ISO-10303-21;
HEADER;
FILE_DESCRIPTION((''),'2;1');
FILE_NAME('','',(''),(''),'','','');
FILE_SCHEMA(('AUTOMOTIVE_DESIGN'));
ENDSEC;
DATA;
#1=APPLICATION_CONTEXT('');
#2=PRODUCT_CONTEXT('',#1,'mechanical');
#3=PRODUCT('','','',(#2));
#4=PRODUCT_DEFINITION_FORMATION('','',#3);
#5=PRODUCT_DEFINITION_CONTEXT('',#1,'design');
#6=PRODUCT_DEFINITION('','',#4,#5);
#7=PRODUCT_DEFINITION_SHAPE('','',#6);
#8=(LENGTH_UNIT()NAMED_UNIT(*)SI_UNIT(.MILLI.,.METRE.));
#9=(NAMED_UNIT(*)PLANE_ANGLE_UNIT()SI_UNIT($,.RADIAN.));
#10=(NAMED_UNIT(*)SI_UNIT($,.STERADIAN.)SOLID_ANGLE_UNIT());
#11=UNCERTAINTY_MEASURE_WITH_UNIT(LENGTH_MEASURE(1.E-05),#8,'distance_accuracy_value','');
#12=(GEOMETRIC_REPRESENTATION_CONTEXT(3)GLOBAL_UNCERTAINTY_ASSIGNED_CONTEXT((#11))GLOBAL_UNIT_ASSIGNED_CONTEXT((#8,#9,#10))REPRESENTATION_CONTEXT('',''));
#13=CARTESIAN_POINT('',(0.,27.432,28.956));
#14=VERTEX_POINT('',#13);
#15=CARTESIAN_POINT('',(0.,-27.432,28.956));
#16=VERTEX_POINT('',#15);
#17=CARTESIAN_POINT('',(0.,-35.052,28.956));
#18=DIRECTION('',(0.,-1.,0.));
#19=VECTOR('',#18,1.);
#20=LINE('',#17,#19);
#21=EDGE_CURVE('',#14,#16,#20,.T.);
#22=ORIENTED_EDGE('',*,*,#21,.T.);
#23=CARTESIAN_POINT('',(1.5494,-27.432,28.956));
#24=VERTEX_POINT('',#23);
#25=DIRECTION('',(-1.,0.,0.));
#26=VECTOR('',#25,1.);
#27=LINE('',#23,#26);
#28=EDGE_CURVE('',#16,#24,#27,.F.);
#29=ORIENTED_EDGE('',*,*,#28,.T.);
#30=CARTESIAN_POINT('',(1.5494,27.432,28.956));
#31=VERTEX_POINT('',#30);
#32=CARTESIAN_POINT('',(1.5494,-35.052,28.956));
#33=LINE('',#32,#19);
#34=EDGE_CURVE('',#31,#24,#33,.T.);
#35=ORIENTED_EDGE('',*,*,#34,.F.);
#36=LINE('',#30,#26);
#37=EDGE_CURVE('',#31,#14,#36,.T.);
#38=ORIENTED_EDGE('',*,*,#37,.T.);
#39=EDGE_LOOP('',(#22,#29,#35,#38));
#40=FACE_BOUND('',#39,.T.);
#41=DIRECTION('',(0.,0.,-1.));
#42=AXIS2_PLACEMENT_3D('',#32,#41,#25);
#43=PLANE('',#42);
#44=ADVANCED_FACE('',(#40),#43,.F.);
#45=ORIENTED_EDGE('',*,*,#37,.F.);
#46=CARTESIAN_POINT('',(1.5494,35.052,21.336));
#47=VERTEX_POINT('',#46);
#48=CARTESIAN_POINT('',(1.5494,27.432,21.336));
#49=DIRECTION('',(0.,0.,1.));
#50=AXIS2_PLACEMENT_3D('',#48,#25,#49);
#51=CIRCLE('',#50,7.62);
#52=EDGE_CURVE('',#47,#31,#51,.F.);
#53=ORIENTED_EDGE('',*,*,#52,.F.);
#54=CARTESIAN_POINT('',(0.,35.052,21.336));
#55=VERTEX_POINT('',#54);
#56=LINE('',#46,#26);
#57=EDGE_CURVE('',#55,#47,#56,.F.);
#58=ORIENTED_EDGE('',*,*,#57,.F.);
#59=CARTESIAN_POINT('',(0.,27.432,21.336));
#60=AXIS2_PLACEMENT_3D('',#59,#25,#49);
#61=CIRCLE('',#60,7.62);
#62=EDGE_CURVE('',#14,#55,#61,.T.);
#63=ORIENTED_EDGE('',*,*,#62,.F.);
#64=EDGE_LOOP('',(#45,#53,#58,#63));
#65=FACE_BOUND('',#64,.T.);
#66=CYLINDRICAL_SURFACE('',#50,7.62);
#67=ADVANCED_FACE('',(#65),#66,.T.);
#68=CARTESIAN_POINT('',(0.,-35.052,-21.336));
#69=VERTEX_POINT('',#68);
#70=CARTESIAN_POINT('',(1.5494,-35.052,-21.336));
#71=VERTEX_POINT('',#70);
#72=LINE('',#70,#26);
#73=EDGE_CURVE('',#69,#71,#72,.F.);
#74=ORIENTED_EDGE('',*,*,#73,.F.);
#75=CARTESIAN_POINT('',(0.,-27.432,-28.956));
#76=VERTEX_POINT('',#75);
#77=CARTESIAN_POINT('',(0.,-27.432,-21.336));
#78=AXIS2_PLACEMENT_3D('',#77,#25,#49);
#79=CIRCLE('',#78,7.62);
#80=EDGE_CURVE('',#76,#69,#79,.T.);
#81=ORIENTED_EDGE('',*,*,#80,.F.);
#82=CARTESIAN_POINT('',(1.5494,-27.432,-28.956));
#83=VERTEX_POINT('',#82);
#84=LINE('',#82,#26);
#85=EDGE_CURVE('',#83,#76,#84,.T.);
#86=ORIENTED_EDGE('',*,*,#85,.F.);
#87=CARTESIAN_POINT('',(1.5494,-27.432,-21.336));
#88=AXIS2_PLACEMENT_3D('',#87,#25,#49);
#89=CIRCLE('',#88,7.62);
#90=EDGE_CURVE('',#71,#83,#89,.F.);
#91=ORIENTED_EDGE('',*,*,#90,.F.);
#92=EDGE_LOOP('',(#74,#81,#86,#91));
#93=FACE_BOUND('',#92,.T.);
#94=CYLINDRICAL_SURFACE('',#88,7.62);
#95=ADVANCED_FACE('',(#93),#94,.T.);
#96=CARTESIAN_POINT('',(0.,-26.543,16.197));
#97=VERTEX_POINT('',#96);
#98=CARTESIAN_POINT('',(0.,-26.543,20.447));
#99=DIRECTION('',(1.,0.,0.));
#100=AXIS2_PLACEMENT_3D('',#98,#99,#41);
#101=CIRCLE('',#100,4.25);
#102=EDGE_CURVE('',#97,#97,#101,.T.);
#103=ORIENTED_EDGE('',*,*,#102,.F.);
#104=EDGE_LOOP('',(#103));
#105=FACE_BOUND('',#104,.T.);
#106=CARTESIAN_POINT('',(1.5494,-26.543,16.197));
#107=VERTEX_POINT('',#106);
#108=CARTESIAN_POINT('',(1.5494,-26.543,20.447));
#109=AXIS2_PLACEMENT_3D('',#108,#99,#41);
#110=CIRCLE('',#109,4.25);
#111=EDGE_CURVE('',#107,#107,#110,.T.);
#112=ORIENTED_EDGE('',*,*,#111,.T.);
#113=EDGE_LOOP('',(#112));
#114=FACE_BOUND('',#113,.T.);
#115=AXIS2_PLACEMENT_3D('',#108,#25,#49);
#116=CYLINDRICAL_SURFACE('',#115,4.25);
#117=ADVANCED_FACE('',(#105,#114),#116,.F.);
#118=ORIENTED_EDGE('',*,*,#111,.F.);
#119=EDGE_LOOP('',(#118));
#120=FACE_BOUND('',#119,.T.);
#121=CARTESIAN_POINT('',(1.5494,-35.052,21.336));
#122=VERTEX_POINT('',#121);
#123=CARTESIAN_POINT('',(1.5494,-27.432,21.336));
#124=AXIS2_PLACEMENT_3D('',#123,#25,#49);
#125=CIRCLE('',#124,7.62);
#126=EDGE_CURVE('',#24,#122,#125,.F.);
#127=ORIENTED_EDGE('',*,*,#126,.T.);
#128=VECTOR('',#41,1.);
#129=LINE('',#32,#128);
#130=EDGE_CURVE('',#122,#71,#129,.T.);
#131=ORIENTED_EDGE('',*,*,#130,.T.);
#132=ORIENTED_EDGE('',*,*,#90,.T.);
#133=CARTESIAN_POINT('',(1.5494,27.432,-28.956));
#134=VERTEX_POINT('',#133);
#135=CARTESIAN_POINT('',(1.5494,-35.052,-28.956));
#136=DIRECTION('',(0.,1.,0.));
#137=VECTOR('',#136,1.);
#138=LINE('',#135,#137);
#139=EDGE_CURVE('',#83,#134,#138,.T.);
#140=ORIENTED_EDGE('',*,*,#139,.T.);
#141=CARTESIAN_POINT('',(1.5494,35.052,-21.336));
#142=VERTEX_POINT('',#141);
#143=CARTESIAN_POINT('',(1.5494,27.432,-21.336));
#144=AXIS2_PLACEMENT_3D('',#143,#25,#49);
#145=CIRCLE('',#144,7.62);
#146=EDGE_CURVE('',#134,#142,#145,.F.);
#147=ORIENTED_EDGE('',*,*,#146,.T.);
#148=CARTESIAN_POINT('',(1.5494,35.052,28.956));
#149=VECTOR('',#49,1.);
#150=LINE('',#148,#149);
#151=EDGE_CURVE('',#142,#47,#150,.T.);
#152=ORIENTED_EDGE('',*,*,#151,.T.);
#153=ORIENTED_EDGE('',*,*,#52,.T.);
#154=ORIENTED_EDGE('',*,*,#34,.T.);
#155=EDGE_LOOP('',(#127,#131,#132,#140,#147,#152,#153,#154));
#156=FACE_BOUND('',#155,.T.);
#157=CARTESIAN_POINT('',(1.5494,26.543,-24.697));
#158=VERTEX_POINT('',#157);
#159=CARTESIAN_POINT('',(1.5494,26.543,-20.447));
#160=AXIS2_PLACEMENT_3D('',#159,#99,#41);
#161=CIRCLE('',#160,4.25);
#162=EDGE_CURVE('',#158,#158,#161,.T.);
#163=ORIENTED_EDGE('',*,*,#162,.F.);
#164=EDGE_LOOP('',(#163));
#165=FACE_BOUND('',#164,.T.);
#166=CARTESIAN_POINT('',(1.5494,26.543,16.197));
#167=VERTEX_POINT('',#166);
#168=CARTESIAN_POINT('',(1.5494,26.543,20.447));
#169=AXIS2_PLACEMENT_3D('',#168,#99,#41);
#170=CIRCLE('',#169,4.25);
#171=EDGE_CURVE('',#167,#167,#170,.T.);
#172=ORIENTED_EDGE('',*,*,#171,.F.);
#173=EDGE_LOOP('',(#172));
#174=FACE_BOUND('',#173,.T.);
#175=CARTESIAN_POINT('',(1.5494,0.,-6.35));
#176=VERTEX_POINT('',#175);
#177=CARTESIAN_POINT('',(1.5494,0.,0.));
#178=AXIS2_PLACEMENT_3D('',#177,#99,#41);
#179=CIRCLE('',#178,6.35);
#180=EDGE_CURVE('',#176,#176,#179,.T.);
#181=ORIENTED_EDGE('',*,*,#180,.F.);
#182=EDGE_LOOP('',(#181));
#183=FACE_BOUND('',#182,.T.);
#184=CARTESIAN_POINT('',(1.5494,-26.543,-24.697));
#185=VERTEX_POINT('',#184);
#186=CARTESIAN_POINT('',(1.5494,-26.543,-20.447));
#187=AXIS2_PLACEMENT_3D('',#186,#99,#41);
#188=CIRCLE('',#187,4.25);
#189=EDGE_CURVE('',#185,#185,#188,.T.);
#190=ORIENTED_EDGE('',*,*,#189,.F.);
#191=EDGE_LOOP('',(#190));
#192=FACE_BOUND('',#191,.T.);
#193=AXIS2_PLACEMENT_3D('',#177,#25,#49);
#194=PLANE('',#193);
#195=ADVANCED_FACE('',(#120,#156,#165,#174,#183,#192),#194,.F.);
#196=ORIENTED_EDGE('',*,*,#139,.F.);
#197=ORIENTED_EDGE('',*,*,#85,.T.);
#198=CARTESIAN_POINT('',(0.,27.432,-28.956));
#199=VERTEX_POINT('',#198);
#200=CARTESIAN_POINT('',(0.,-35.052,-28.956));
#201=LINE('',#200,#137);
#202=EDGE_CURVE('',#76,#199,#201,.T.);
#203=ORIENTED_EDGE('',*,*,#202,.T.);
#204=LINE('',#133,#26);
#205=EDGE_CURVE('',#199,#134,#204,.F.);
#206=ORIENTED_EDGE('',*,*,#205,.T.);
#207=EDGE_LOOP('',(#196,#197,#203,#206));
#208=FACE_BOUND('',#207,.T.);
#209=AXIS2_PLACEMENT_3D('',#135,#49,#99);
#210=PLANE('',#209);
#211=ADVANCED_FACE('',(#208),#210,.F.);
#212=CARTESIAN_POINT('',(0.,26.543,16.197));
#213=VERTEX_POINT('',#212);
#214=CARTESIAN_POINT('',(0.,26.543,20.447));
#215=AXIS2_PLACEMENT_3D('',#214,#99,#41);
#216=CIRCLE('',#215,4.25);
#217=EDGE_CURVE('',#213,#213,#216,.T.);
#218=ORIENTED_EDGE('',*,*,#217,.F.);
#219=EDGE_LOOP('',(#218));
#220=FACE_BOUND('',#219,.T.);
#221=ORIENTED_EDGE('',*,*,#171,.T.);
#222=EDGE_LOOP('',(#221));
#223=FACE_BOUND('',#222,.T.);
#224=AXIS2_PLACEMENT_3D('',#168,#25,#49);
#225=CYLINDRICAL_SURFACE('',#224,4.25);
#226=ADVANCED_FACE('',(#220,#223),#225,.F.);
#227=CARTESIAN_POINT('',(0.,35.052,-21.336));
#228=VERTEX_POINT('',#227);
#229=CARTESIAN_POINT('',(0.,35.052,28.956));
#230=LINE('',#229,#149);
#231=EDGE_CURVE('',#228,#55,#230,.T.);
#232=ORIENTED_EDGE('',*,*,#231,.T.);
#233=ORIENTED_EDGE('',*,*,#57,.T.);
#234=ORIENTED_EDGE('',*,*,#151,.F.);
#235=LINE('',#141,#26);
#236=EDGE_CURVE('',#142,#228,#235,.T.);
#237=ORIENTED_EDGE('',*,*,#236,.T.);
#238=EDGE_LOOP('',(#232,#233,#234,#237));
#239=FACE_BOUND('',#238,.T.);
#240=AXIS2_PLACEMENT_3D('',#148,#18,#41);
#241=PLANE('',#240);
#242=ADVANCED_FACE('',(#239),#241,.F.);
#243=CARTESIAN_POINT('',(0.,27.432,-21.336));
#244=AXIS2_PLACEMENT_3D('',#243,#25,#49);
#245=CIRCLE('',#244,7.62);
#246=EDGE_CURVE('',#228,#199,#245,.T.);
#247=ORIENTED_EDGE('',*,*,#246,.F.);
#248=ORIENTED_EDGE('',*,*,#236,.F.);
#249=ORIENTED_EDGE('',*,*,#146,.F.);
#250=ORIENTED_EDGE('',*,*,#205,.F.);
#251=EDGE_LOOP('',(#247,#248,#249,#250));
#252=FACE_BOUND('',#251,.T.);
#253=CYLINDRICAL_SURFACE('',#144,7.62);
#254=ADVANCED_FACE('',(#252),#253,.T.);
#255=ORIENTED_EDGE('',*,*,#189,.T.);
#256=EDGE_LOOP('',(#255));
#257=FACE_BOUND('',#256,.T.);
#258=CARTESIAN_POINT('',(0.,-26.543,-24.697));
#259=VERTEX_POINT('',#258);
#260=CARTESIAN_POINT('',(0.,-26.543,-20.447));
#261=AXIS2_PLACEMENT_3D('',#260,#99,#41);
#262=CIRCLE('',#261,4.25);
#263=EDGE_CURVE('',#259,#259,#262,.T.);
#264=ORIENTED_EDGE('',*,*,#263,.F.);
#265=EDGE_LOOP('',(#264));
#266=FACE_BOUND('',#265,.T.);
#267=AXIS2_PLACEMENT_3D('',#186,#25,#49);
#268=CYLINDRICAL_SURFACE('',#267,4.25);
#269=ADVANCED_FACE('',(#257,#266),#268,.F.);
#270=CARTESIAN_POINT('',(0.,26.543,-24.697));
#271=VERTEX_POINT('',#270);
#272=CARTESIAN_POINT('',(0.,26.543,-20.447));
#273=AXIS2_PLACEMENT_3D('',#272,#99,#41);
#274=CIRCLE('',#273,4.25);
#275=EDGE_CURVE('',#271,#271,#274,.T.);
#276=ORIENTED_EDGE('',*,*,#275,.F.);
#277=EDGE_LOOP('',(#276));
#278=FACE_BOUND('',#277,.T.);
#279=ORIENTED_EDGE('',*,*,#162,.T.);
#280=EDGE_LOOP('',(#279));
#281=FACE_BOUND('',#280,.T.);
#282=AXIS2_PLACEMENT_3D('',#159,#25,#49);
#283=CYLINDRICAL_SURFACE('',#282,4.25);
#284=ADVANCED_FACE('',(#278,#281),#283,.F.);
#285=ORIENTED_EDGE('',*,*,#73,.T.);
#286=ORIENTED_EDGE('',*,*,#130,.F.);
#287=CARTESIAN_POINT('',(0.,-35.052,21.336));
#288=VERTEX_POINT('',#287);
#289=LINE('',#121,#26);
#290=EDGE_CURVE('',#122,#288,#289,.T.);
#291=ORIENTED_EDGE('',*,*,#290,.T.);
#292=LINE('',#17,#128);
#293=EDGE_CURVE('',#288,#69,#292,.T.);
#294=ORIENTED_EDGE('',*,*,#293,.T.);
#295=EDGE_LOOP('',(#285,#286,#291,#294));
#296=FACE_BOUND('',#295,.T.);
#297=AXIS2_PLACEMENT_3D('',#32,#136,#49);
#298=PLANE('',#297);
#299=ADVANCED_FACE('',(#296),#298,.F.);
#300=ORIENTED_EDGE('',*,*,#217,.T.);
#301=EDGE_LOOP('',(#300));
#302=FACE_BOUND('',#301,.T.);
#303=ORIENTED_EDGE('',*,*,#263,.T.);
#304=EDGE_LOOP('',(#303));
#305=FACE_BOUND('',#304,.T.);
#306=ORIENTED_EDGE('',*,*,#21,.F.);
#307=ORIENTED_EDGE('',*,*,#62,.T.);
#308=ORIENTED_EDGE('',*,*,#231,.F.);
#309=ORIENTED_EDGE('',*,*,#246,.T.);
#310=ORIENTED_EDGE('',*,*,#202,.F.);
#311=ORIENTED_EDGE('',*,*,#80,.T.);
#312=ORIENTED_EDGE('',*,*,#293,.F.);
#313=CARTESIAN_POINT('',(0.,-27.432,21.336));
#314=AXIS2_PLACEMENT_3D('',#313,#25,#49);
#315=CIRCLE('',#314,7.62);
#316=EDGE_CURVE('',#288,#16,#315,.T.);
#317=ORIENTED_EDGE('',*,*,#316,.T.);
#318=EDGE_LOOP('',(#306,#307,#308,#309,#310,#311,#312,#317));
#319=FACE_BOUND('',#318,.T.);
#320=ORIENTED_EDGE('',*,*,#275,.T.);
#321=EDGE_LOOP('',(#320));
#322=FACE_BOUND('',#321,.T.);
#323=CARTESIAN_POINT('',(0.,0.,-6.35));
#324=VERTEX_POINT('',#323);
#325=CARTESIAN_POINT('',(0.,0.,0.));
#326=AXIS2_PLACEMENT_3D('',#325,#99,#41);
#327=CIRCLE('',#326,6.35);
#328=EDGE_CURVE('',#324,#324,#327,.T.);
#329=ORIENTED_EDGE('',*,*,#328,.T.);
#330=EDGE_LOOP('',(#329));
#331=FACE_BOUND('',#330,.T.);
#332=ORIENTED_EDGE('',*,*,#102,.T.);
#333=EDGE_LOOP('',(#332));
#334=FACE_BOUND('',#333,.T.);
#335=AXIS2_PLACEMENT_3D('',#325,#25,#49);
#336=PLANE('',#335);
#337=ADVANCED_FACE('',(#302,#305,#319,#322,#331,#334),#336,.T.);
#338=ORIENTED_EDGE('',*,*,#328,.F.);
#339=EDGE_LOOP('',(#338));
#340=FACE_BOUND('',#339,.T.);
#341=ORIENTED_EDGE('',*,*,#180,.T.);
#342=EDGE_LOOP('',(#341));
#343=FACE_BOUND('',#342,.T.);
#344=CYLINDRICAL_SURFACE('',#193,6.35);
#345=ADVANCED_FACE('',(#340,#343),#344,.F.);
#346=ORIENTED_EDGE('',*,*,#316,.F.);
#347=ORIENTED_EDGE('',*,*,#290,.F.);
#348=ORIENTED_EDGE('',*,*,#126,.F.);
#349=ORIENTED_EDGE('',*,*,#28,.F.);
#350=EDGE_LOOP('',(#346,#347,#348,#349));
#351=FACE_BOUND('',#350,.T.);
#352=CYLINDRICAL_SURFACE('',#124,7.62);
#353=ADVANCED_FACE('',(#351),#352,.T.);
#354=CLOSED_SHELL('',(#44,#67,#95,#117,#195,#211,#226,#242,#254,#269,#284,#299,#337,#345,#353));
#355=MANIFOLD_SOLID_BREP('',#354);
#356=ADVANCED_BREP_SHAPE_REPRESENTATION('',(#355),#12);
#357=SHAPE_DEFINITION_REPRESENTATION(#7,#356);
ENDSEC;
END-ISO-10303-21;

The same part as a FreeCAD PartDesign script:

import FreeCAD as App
import Part
import Sketcher
Q = App.Units.Quantity


def edges_at(feature, points):
    """Names of the edges that pass closest to the given points."""
    edges = feature.Shape.Edges
    near = lambda p: min(range(len(edges)), key=lambda i: edges[i].distToShape(Part.Vertex(*p))[0])
    return sorted({f"Edge{near(p) + 1}" for p in points})

doc = App.newDocument("Part")
body = doc.addObject("PartDesign::Body", "Body")

# Sketch on YZ plane
sketch1 = body.newObject("Sketcher::SketchObject", "Sketch")
sketch1.AttachmentSupport = (doc.getObject("YZ_Plane"), [""])
sketch1.MapMode = "FlatFace"
sketch1.addGeometry(Part.LineSegment(App.Vector(35.052, 28.956, 0), App.Vector(-35.052, 28.956, 0)), False)
sketch1.addGeometry(Part.LineSegment(App.Vector(-35.052, 28.956, 0), App.Vector(-35.052, -28.956, 0)), False)
sketch1.addGeometry(Part.LineSegment(App.Vector(-35.052, -28.956, 0), App.Vector(35.052, -28.956, 0)), False)
sketch1.addGeometry(Part.LineSegment(App.Vector(35.052, -28.956, 0), App.Vector(35.052, 28.956, 0)), False)
sketch1.addGeometry(Part.Circle(App.Vector(-26.543, 20.447, 0), App.Vector(0, 0, 1), 4.25), False)
sketch1.addGeometry(Part.Circle(App.Vector(-26.543, -20.447, 0), App.Vector(0, 0, 1), 4.25), False)
sketch1.addGeometry(Part.Circle(App.Vector(26.543, 20.447, 0), App.Vector(0, 0, 1), 4.25), False)
sketch1.addGeometry(Part.Circle(App.Vector(0, 0, 0), App.Vector(0, 0, 1), 6.35), False)
sketch1.addGeometry(Part.Circle(App.Vector(26.543, -20.447, 0), App.Vector(0, 0, 1), 4.25), False)
sketch1.addConstraint(Sketcher.Constraint("Coincident", 0, 2, 1, 1))
sketch1.addConstraint(Sketcher.Constraint("Coincident", 1, 2, 2, 1))
sketch1.addConstraint(Sketcher.Constraint("Coincident", 2, 2, 3, 1))
sketch1.addConstraint(Sketcher.Constraint("Coincident", 3, 2, 0, 1))
sketch1.addConstraint(Sketcher.Constraint("Horizontal", 0))
sketch1.addConstraint(Sketcher.Constraint("Vertical", 1))
sketch1.addConstraint(Sketcher.Constraint("Horizontal", 2))
sketch1.addConstraint(Sketcher.Constraint("Vertical", 3))
sketch1.addConstraint(Sketcher.Constraint("Coincident", 7, 3, -1, 1))
sketch1.addConstraint(Sketcher.Constraint("Equal", 4, 5))
sketch1.addConstraint(Sketcher.Constraint("Equal", 5, 6))
sketch1.addConstraint(Sketcher.Constraint("Equal", 6, 8))
sketch1.addConstraint(Sketcher.Constraint("Symmetric", 5, 3, 6, 3, -1, 1))
sketch1.addConstraint(Sketcher.Constraint("Symmetric", 4, 3, 8, 3, -1, 1))
sketch1.addConstraint(Sketcher.Constraint("Symmetric", 0, 2, 2, 2, -1, 1))
sketch1.addConstraint(Sketcher.Constraint("Symmetric", 4, 3, 6, 3, -2))
sketch1.addConstraint(Sketcher.Constraint("Diameter", 7, Q("0.5 in")))
sketch1.addConstraint(Sketcher.Constraint("DistanceX", 0, 2, 0, 1, Q("2.76 in")))
sketch1.addConstraint(Sketcher.Constraint("DistanceY", 1, 2, 1, 1, Q("2.28 in")))
sketch1.addConstraint(Sketcher.Constraint("Diameter", 4, 8.5))
sketch1.addConstraint(Sketcher.Constraint("DistanceY", 5, 3, 4, 3, Q("1.61 in")))
sketch1.addConstraint(Sketcher.Constraint("DistanceX", 4, 3, 6, 3, Q("2.09 in")))
pad1 = body.newObject("PartDesign::Pad", "Pad")
pad1.Profile = sketch1
pad1.Length = Q("0.061 in")
doc.recompute()

fillet = body.newObject("PartDesign::Fillet", "Fillet")
fillet.Base = (pad1, edges_at(pad1, [
    (0.775, -35.052, -28.956),
    (0.775, -35.052, 28.956),
    (0.775, 35.052, 28.956),
    (0.775, 35.052, -28.956),
]))
fillet.Radius = Q("0.3 in")

doc.recompute()
